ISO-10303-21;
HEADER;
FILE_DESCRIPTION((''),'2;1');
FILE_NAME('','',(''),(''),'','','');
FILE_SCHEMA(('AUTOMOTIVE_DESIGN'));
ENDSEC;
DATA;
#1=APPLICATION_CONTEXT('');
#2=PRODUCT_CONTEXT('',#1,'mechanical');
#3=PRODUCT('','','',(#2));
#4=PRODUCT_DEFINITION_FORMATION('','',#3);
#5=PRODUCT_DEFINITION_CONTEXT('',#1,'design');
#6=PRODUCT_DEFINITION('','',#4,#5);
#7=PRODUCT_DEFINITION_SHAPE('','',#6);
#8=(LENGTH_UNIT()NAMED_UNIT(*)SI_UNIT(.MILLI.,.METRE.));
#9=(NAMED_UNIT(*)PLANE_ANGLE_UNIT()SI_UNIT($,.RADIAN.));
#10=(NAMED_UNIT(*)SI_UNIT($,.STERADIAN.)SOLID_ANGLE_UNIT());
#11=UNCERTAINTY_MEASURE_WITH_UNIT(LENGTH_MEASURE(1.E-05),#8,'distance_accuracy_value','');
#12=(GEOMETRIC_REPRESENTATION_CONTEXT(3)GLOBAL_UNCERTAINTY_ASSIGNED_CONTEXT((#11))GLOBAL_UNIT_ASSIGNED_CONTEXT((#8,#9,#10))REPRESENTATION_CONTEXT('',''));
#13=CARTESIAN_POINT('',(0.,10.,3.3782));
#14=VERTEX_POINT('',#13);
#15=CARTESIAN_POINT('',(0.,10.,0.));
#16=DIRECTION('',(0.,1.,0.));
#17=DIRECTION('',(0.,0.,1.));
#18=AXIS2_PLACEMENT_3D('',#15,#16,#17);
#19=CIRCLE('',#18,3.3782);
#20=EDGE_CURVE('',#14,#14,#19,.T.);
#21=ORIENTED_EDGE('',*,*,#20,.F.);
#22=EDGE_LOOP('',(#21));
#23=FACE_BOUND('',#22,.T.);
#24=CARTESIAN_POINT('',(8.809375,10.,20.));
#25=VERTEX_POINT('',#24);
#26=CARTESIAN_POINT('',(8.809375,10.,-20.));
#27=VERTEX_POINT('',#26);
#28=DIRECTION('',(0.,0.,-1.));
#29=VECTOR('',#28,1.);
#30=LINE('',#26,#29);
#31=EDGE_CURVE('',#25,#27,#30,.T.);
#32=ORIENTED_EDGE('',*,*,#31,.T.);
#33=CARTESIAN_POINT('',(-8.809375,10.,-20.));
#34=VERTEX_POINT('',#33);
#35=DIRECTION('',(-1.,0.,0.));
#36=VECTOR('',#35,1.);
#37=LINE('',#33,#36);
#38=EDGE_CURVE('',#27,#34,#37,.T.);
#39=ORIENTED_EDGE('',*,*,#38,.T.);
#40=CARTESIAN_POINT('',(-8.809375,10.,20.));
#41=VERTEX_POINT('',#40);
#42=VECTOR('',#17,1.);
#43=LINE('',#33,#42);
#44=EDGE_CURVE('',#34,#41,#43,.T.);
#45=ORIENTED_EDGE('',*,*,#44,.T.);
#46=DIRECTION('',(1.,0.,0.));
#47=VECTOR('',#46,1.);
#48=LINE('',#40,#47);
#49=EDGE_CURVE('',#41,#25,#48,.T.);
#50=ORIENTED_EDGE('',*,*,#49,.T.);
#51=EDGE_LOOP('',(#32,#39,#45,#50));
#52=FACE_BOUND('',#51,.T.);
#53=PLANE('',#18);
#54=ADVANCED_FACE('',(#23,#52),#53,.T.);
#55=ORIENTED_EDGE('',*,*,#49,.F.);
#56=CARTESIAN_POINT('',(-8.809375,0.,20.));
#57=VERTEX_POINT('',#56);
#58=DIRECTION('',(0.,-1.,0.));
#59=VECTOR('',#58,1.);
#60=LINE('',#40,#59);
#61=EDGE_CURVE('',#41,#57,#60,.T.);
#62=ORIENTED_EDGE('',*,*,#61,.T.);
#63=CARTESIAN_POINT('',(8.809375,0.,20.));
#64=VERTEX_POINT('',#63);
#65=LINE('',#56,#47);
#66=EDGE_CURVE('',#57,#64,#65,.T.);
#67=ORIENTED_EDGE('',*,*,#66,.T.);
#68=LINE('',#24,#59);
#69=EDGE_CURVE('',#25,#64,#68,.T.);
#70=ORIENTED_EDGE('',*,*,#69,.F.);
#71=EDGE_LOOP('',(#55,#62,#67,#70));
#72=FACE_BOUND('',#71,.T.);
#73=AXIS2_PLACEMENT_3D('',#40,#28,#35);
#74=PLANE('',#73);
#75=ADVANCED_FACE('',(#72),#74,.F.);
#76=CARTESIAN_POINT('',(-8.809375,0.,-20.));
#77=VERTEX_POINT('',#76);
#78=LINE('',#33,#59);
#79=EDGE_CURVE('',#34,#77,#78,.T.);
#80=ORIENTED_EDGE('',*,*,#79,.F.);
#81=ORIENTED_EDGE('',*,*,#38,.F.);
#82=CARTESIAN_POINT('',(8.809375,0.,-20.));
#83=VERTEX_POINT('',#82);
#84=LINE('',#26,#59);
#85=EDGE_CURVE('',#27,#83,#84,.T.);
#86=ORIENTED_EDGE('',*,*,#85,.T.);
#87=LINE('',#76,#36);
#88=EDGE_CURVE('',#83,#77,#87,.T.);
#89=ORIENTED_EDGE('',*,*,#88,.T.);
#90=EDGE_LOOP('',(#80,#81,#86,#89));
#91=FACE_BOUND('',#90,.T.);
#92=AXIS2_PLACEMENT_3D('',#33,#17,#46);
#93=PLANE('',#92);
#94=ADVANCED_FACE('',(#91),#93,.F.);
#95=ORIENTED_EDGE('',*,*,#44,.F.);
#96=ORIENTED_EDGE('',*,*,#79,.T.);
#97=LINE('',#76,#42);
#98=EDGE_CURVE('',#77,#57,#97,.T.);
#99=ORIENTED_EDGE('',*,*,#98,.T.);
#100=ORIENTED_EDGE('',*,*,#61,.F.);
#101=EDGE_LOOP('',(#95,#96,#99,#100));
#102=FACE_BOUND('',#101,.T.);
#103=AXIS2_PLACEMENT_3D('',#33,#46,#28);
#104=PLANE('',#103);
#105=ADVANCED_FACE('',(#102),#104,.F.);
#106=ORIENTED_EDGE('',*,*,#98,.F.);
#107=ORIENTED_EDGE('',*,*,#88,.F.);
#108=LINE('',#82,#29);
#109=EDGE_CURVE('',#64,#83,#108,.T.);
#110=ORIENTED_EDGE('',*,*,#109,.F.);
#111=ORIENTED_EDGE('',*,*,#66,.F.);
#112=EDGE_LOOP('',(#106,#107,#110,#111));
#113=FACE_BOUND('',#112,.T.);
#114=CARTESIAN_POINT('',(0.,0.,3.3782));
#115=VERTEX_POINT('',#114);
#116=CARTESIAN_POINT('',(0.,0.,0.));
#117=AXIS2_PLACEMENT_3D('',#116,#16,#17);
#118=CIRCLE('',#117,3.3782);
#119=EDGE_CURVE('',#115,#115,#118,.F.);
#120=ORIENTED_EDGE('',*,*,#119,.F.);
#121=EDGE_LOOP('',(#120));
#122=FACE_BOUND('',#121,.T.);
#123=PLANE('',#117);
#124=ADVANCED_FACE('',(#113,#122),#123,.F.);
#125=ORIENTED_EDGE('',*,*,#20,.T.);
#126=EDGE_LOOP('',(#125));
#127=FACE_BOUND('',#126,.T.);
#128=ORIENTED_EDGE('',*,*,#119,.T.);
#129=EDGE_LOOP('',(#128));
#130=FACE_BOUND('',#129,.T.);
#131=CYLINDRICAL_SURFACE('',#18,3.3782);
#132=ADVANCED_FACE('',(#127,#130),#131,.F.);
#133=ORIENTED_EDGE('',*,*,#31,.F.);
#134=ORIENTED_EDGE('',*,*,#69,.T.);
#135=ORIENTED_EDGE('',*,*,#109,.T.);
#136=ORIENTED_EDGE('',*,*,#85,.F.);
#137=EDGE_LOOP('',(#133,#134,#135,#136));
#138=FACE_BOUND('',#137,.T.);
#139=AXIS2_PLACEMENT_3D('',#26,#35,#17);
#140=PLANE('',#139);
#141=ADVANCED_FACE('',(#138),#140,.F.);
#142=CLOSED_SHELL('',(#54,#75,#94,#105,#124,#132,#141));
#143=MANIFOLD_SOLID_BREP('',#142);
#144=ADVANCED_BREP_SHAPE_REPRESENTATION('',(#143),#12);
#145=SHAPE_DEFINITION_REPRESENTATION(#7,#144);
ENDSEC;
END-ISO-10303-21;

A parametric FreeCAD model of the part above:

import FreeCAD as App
import Part
import Sketcher

doc = App.newDocument("Part")
params = doc.addObject("Spreadsheet::Sheet", "Params")
for row, (alias, value) in enumerate([
    ("sketch1_height", "40 mm"),
    ("pad1_length", "10 mm"),
    ("hole_diameter", "6.7564 mm"),
    ("hole_depth", "10 mm"),
], start=1):
    params.set(f"A{row}", alias)
    params.set(f"B{row}", "=" + value)
    params.setAlias(f"B{row}", alias)

body = doc.addObject("PartDesign::Body", "Body")

# Sketch on XZ plane
sketch1 = body.newObject("Sketcher::SketchObject", "Sketch")
sketch1.AttachmentSupport = (doc.getObject("XZ_Plane"), [""])
sketch1.MapMode = "FlatFace"
sketch1.addGeometry([
    Part.LineSegment(App.Vector(-9, -20, 0), App.Vector(-9, 20, 0)),
    Part.LineSegment(App.Vector(-9, 20, 0), App.Vector(9, 20, 0)),
    Part.LineSegment(App.Vector(9, 20, 0), App.Vector(9, -20, 0)),
    Part.LineSegment(App.Vector(9, -20, 0), App.Vector(-9, -20, 0)),
], False)
sketch1.addConstraint([
    Sketcher.Constraint("Coincident", 0, 2, 1, 1),
    Sketcher.Constraint("Coincident", 1, 2, 2, 1),
    Sketcher.Constraint("Coincident", 2, 2, 3, 1),
    Sketcher.Constraint("Coincident", 3, 2, 0, 1),
    Sketcher.Constraint("Vertical", 0),
    Sketcher.Constraint("Horizontal", 1),
    Sketcher.Constraint("Vertical", 2),
    Sketcher.Constraint("Horizontal", 3),
    Sketcher.Constraint("Symmetric", 0, 2, 2, 2, -1, 1),
    Sketcher.Constraint("DistanceY", 0, 1, 0, 2, 40.0),
    Sketcher.Constraint("DistanceX", 1, 1, 1, 2, 17.61875),
])
sketch1.setExpression("Constraints[9]", "Params.sketch1_height")
pad1 = body.newObject("PartDesign::Pad", "Pad")
pad1.Profile = sketch1
pad1.setExpression("Length", "Params.pad1_length")
pad1.Reversed = True

# Sketch on XZ plane
sketch2 = body.newObject("Sketcher::SketchObject", "Sketch001")
sketch2.AttachmentSupport = (doc.getObject("XZ_Plane"), [""])
sketch2.MapMode = "FlatFace"
sketch2.AttachmentOffset = App.Placement(App.Vector(0, 0, -10), App.Rotation())
sketch2.addGeometry(Part.Circle(App.Vector(0, 0, 0), App.Vector(0, 0, 1), 3.4), False)
sketch2.addConstraint([
    Sketcher.Constraint("Coincident", 0, 3, -1, 1),
    Sketcher.Constraint("Diameter", 0, 6.7564),
])
doc.recompute()
hole = body.newObject("PartDesign::Hole", "Hole")
hole.Profile = sketch2
hole.ThreadType = "None"
hole.setExpression("Diameter", "Params.hole_diameter")
hole.DepthType = "Dimension"
hole.setExpression("Depth", "Params.hole_depth")
hole.DrillPoint = "Angled"
hole.DrillPointAngle = 118
hole.Reversed = True

doc.recompute()
